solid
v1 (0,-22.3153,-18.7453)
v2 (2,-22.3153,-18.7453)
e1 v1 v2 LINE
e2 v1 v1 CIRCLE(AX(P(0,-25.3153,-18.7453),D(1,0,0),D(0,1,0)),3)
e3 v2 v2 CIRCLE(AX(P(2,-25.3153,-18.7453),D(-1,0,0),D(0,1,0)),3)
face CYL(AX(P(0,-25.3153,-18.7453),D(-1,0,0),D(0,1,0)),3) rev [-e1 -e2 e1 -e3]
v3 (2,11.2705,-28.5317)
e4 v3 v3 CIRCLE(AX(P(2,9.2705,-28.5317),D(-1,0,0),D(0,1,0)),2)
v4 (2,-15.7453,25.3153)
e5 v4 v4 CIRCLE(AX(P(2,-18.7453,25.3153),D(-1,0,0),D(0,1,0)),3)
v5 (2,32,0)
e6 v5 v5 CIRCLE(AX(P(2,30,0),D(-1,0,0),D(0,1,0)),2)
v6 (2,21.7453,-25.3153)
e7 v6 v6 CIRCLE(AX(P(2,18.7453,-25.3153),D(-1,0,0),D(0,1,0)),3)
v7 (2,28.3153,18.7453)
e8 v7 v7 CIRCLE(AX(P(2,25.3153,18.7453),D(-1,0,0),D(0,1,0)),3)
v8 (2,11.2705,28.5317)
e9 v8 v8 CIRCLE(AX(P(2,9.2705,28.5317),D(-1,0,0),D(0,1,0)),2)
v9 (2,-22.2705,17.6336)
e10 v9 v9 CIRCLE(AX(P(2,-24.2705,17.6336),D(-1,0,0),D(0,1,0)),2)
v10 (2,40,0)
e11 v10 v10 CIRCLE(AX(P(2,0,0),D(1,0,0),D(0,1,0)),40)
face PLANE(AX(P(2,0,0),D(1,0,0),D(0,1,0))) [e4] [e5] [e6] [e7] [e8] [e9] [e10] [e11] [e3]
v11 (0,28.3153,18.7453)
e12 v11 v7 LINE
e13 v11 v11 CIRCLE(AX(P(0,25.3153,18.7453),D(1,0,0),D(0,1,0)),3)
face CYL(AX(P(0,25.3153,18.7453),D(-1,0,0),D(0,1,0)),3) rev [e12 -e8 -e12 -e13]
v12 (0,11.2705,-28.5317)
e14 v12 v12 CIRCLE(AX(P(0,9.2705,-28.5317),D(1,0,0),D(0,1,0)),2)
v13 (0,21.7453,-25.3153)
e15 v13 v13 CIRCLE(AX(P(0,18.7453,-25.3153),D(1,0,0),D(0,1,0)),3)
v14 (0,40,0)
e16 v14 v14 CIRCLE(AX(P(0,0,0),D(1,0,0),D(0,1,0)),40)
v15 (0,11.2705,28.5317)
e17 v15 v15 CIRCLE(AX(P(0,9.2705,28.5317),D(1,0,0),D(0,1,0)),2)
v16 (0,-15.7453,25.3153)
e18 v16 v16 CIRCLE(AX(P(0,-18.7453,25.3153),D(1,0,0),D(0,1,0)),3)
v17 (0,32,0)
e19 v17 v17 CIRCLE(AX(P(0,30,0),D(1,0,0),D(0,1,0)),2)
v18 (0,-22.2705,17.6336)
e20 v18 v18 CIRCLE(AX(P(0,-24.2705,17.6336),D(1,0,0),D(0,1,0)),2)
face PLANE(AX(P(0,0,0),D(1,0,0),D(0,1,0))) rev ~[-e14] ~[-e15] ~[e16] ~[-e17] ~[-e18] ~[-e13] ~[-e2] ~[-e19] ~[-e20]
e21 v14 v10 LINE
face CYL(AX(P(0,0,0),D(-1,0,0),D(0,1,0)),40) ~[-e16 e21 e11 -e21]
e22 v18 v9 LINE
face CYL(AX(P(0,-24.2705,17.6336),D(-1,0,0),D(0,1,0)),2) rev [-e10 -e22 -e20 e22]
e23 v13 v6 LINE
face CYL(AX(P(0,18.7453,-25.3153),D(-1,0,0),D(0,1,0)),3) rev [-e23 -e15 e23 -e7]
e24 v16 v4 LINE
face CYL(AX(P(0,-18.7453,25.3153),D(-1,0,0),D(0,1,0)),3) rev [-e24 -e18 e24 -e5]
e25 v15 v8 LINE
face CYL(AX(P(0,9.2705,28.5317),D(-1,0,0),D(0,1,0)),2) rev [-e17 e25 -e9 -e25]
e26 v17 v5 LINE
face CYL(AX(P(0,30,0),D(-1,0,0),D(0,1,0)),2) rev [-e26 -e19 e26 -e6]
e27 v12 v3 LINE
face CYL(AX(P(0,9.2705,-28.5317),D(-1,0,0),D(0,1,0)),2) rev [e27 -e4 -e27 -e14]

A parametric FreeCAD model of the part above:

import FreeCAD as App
import Part
import Sketcher

doc = App.newDocument("Part")
body = doc.addObject("PartDesign::Body", "Body")

sketch1 = doc.addObject("Sketcher::SketchObject", "Sketch")
body.addObject(sketch1)
sketch1.AttachmentSupport = (doc.YZ_Plane, [""])
sketch1.MapMode = "FlatFace"
sketch1.addGeometry(Part.Circle(App.Vector(0, 0, 0), App.Vector(0, 0, 1), 40), False)
sketch1.addConstraint([
    Sketcher.Constraint("Coincident", 0, 3, -1, 1),
    Sketcher.Constraint("Diameter", 0, 80.0),
])
pad1 = doc.addObject("PartDesign::Pad", "Pad")
body.addObject(pad1)
pad1.Profile = sketch1
pad1.Length = 2

sketch2 = doc.addObject("Sketcher::SketchObject", "Sketch001")
body.addObject(sketch2)
sketch2.AttachmentSupport = (doc.YZ_Plane, [""])
sketch2.MapMode = "FlatFace"
sketch2.addGeometry([
    Part.Circle(App.Vector(30, 0, 0), App.Vector(0, 0, 1), 2),
    Part.Circle(App.Vector(25.3, 18.7, 0), App.Vector(0, 0, 1), 3),
    Part.Circle(App.Vector(18.7, -25.3, 0), App.Vector(0, 0, 1), 3),
    Part.Circle(App.Vector(9.3, 28.5, 0), App.Vector(0, 0, 1), 2),
    Part.Circle(App.Vector(9.3, -28.5, 0), App.Vector(0, 0, 1), 2),
    Part.Circle(App.Vector(-18.7, 25.3, 0), App.Vector(0, 0, 1), 3),
    Part.Circle(App.Vector(-25.3, -18.7, 0), App.Vector(0, 0, 1), 3),
    Part.Circle(App.Vector(-24.3, 17.6, 0), App.Vector(0, 0, 1), 2),
], False)
sketch2.addConstraint([
    Sketcher.Constraint("Equal", 1, 2),
    Sketcher.Constraint("Equal", 0, 3),
    Sketcher.Constraint("Equal", 3, 4),
    Sketcher.Constraint("Equal", 2, 5),
    Sketcher.Constraint("Equal", 5, 6),
    Sketcher.Constraint("Equal", 4, 7),
    Sketcher.Constraint("Symmetric", 2, 3, 5, 3, -1, 1),
    Sketcher.Constraint("Symmetric", 1, 3, 6, 3, -1, 1),
    Sketcher.Constraint("Symmetric", 3, 3, 4, 3, -1),
    Sketcher.Constraint("PointOnObject", 0, 3, -1),
    Sketcher.Constraint("Diameter", 0, 4.0),
    Sketcher.Constraint("Diameter", 1, 6.0),
    Sketcher.Constraint("DistanceX", -1, 1, 0, 3, 30.0),
    Sketcher.Constraint("DistanceX", 2, 3, 1, 3, 6.57),
    Sketcher.Constraint("DistanceY", 1, 3, 5, 3, 6.57),
    Sketcher.Constraint("DistanceY", 2, 3, 3, 3, 53.847),
    Sketcher.Constraint("DistanceX", 7, 3, 3, 3, 33.541),
    Sketcher.Constraint("DistanceY", 7, 3, 3, 3, 10.898),
    Sketcher.Constraint("DistanceX", -1, 1, 1, 3, 25.3153),
    Sketcher.Constraint("DistanceY", -1, 1, 1, 3, 18.7453),
    Sketcher.Constraint("DistanceX", -1, 1, 3, 3, 9.2705),
])
pocket1 = doc.addObject("PartDesign::Pocket", "Pocket")
body.addObject(pocket1)
pocket1.Profile = sketch2
pocket1.Length = 2
pocket1.Reversed = True

doc.recompute()
